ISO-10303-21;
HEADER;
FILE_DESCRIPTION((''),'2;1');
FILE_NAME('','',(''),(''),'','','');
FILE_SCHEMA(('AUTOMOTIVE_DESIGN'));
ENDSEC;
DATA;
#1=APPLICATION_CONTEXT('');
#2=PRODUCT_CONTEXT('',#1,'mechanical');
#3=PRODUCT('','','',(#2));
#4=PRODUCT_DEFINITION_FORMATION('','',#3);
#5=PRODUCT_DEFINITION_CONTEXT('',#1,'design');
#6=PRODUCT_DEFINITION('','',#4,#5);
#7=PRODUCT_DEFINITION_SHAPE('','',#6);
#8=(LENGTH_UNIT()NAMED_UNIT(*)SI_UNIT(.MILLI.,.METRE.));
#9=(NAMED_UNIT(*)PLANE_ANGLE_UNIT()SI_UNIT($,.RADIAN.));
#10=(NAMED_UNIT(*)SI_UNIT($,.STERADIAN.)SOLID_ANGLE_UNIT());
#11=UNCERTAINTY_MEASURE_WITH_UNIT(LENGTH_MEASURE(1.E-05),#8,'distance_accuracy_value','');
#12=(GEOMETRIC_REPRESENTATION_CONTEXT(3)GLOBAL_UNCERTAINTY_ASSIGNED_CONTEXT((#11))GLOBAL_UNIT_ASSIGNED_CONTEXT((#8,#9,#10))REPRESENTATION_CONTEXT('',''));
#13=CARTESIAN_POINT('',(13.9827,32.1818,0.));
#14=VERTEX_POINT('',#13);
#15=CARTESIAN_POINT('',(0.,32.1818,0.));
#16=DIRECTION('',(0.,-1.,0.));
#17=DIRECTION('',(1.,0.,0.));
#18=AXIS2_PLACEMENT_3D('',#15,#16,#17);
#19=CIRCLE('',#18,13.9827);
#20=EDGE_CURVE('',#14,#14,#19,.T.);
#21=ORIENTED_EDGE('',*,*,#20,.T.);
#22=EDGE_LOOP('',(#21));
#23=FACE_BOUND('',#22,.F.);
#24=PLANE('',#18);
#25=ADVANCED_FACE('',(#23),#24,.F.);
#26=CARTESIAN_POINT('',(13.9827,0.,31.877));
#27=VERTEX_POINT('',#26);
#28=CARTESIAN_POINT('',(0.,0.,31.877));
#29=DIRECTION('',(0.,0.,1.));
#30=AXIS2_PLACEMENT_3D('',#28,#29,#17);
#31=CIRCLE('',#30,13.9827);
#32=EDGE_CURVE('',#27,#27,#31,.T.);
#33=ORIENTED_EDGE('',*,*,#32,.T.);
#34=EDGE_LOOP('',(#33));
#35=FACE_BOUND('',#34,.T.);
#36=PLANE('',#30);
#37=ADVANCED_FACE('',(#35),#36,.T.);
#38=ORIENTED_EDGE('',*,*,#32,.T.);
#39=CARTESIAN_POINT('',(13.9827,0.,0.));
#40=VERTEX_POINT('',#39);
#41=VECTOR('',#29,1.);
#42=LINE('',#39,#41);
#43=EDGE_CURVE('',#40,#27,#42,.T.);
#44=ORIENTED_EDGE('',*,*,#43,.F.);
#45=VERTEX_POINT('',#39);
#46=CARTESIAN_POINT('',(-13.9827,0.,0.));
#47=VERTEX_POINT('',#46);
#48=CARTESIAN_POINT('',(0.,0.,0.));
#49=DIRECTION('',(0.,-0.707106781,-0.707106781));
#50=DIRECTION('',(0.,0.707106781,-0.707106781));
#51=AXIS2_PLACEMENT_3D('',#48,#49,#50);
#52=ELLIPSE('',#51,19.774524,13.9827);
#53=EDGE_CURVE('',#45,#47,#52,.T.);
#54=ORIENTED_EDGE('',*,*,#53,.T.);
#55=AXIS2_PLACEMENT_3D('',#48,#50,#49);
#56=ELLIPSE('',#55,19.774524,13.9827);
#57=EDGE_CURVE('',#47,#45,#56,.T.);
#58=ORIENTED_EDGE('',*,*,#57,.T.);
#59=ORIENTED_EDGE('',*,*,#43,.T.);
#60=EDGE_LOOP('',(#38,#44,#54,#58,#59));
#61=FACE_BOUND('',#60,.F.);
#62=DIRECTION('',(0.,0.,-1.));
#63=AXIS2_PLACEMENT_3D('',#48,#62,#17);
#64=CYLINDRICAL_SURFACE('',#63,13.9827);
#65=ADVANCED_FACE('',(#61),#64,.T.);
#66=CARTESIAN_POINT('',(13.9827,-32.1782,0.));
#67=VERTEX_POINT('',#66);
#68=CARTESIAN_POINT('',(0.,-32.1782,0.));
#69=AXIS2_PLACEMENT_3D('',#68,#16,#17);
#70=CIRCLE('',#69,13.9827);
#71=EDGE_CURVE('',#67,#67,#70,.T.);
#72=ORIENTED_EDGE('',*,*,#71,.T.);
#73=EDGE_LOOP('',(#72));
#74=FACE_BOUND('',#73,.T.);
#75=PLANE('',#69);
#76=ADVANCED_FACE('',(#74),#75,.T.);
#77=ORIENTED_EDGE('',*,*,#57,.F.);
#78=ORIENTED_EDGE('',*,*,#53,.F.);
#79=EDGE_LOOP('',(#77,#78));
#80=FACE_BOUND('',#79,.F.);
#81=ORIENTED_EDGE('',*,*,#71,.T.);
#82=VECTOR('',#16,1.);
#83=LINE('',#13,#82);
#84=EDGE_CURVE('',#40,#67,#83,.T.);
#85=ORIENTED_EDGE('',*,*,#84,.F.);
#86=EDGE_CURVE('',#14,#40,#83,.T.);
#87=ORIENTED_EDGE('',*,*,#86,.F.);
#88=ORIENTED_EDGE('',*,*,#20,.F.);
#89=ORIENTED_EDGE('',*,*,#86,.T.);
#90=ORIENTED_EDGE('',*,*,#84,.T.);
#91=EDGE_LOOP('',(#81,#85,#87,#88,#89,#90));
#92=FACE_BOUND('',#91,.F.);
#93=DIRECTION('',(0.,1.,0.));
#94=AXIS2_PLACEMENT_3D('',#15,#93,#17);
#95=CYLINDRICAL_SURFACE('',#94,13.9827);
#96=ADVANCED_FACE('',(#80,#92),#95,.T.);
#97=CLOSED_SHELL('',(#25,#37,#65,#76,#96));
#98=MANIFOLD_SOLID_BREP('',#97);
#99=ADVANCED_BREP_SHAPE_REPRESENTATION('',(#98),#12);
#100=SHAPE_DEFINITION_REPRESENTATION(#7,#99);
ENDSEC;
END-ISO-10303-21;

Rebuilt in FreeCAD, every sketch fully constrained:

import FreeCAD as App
import Part
import Sketcher
from FreeCAD import Vector
Q = App.Units.Quantity

doc = App.newDocument("Part")
body = doc.addObject("PartDesign::Body", "Body")

# Sketch on XZ plane
sketch1 = body.newObject("Sketcher::SketchObject", "Sketch")
sketch1.AttachmentSupport = (doc.getObject("XZ_Plane"), [""])
sketch1.MapMode = "FlatFace"
sketch1.AttachmentOffset = App.Placement(Vector(0, 0, -1.267 * 25.4), App.Rotation())
sketch1.addGeometry(Part.Circle(Vector(0, 0, 0), Vector(0, 0, 1), 14), False)
sketch1.addConstraint([
    Sketcher.Constraint("Coincident", 0, 3, -1, 1),
    Sketcher.Constraint("Diameter", 0, Q("1.101 in")),
])
pad1 = body.newObject("PartDesign::Pad", "Pad")
pad1.Profile = sketch1
pad1.Length = 64.36
body2 = doc.addObject("PartDesign::Body", "Body001")

# Sketch on XY plane
sketch2 = body2.newObject("Sketcher::SketchObject", "Sketch001")
sketch2.AttachmentSupport = (doc.getObject("XY_Plane001"), [""])
sketch2.MapMode = "FlatFace"
sketch2.addGeometry(Part.Circle(Vector(0, 0, 0), Vector(0, 0, 1), 14), False)
sketch2.addConstraint([
    Sketcher.Constraint("Coincident", 0, 3, -1, 1),
    Sketcher.Constraint("Diameter", 0, Q("1.101 in")),
])
pad2 = body2.newObject("PartDesign::Pad", "Pad001")
pad2.Profile = sketch2
pad2.Length = Q("1.255 in")
doc.recompute()

boolean = body2.newObject("PartDesign::Boolean", "Boolean")
boolean.Type = "Fuse"
boolean.addObjects([body])

doc.recompute()
